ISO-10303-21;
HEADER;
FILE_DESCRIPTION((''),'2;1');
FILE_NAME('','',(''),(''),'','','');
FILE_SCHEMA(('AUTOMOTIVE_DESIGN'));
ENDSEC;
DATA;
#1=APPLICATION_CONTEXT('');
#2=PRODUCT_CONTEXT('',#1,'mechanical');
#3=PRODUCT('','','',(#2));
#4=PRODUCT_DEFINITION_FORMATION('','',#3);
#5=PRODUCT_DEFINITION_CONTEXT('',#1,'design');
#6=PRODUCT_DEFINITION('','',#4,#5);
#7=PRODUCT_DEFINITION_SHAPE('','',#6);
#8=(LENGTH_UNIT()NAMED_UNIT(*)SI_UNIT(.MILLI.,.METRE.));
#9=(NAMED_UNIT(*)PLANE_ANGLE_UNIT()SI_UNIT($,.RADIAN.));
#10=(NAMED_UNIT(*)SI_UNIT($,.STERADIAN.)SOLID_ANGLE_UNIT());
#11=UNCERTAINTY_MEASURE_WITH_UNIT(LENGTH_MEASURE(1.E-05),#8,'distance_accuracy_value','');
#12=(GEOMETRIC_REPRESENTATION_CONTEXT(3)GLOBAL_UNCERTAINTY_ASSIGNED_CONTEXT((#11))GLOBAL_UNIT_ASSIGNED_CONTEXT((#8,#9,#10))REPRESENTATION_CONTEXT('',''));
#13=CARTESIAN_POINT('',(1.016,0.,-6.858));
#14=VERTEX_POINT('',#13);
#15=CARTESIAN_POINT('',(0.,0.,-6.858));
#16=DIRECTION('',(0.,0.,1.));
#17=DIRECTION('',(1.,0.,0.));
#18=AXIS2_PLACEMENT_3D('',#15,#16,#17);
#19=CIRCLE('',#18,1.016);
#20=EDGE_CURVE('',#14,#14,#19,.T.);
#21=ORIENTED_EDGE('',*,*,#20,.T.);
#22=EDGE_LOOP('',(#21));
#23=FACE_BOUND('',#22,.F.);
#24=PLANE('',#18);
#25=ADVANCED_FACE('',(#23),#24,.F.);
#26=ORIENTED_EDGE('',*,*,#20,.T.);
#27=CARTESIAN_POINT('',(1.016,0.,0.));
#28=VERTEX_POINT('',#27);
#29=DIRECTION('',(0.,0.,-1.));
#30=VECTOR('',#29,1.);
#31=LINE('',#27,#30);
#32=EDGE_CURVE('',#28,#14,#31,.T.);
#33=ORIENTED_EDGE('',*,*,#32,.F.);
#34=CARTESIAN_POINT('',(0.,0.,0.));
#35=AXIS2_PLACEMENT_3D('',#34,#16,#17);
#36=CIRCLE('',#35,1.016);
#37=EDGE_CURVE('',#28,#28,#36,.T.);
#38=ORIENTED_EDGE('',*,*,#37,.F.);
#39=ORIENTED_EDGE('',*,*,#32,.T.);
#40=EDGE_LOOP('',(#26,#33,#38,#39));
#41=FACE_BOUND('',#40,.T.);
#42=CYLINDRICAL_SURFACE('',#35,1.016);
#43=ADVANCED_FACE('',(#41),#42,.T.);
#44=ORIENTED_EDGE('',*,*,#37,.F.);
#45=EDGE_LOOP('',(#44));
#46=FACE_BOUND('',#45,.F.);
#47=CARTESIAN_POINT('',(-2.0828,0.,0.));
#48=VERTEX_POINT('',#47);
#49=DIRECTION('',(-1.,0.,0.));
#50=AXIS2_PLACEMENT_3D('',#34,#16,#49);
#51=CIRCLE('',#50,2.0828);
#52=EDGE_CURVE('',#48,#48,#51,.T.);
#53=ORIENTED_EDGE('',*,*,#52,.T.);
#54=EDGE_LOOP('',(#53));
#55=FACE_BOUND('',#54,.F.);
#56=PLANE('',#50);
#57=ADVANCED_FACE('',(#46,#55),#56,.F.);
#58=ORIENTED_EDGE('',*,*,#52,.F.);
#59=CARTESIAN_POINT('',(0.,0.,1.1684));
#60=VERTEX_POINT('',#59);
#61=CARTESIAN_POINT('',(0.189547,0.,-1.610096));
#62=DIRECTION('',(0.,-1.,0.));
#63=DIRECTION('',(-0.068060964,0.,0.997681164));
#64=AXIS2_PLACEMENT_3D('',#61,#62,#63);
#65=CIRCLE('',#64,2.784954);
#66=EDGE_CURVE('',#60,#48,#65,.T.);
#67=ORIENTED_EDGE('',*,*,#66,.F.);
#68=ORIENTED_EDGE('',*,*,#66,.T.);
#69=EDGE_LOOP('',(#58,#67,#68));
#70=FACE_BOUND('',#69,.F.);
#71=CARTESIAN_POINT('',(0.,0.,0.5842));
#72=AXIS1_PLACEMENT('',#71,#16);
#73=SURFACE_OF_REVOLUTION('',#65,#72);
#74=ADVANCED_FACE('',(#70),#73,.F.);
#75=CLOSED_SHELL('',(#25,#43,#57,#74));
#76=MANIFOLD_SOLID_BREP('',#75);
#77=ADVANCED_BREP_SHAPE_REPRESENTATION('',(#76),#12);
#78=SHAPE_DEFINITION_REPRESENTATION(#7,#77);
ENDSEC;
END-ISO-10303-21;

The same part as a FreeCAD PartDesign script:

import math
import FreeCAD as App
import Part
import Sketcher
from FreeCAD import Vector
Q = App.Units.Quantity

doc = App.newDocument("Part")
body = doc.addObject("PartDesign::Body", "Body")

# Sketch on XY plane
sketch1 = body.newObject("Sketcher::SketchObject", "Sketch")
sketch1.AttachmentSupport = (doc.getObject("XY_Plane"), [""])
sketch1.MapMode = "FlatFace"
sketch1.addGeometry(Part.Circle(Vector(0, 0, 0), Vector(0, 0, 1), 1), False)
sketch1.addConstraint(Sketcher.Constraint("Coincident", 0, 3, -1, 1))
sketch1.addConstraint(Sketcher.Constraint("Diameter", 0, Q("0.08 in")))
pad1 = body.newObject("PartDesign::Pad", "Pad")
pad1.Profile = sketch1
pad1.Length = Q("0.27 in")
pad1.Reversed = True

# Sketch on XZ plane
sketch2 = body.newObject("Sketcher::SketchObject", "Sketch001")
sketch2.AttachmentSupport = (doc.getObject("XZ_Plane"), [""])
sketch2.MapMode = "FlatFace"
sketch2.addGeometry(Part.LineSegment(Vector(-2.1, 0, 0), Vector(0, 0, 0)), False)
sketch2.addGeometry(Part.LineSegment(Vector(0, 0, 0), Vector(0, 1.2, 0)), False)
sketch2.addGeometry(Part.ArcOfCircle(Part.Circle(Vector(0.2, -1.6, 0), Vector(0, 0, 1), 2.8), math.radians(94), math.radians(145)), False)
sketch2.addConstraint(Sketcher.Constraint("Coincident", 0, 2, 1, 1))
sketch2.addConstraint(Sketcher.Constraint("Coincident", 1, 2, 2, 1))
sketch2.addConstraint(Sketcher.Constraint("Coincident", 2, 2, 0, 1))
sketch2.addConstraint(Sketcher.Constraint("Horizontal", 0))
sketch2.addConstraint(Sketcher.Constraint("Vertical", 1))
sketch2.addConstraint(Sketcher.Constraint("Coincident", 0, 2, -1, 1))
sketch2.addConstraint(Sketcher.Constraint("DistanceX", 0, 1, 0, 2, Q("0.082 in")))
sketch2.addConstraint(Sketcher.Constraint("DistanceY", 1, 1, 1, 2, Q("0.046 in")))
sketch2.addConstraint(Sketcher.Constraint("Radius", 2, Q("2.784954 mm")))
revolution = body.newObject("PartDesign::Revolution", "Revolution")
revolution.Profile = sketch2
revolution.ReferenceAxis = (sketch2, ["V_Axis"])
revolution.Angle = 360

doc.recompute()
